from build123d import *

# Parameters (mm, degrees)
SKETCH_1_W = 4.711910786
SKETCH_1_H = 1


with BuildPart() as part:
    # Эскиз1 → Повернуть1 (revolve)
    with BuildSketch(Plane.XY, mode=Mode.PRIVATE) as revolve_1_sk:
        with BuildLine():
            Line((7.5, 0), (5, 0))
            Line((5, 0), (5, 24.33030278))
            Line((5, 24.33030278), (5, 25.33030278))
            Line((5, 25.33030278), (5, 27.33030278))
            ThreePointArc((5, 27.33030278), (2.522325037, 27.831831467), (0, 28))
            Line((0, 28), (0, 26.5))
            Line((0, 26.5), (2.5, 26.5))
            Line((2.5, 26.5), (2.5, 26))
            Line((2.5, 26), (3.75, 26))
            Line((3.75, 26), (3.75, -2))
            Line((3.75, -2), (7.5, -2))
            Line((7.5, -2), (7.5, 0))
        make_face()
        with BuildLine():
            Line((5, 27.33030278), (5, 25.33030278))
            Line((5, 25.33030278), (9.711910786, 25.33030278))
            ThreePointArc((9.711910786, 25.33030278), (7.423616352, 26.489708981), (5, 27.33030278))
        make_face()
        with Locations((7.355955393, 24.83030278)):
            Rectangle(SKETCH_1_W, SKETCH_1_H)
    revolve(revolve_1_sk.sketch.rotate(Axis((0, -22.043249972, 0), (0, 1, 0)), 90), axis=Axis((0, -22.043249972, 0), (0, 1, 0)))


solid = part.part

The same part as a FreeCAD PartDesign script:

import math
import FreeCAD as App
import Part
import Sketcher
from FreeCAD import Vector

doc = App.newDocument("Part")
body = doc.addObject("PartDesign::Body", "Body")

# Sketch on XY plane
sketch1 = body.newObject("Sketcher::SketchObject", "Sketch")
sketch1.AttachmentSupport = (doc.getObject("XY_Plane"), [""])
sketch1.MapMode = "FlatFace"
sketch1.addGeometry([
    Part.LineSegment(Vector(7.5, 0, 0), Vector(5, 0, 0)),  # 0
    Part.LineSegment(Vector(5, 0, 0), Vector(5, 24.3, 0)),  # 1
    Part.LineSegment(Vector(5, 24.3, 0), Vector(9.7, 24.3, 0)),  # 2
    Part.LineSegment(Vector(9.7, 24.3, 0), Vector(9.7, 25.3, 0)),  # 3
    Part.ArcOfCircle(Part.Circle(Vector(0, 9, 0), Vector(0, 0, 1), 19), math.radians(59.26), math.radians(74.74)),  # 4
    Part.ArcOfCircle(Part.Circle(Vector(0, 9, 0), Vector(0, 0, 1), 19), math.radians(74.74), math.radians(90)),  # 5
    Part.LineSegment(Vector(0, 28, 0), Vector(0, 26.5, 0)),  # 6
    Part.LineSegment(Vector(0, 26.5, 0), Vector(2.5, 26.5, 0)),  # 7
    Part.LineSegment(Vector(2.5, 26.5, 0), Vector(2.5, 26, 0)),  # 8
    Part.LineSegment(Vector(2.5, 26, 0), Vector(3.8, 26, 0)),  # 9
    Part.LineSegment(Vector(3.8, 26, 0), Vector(3.8, -2, 0)),  # 10
    Part.LineSegment(Vector(3.8, -2, 0), Vector(7.5, -2, 0)),  # 11
    Part.LineSegment(Vector(7.5, -2, 0), Vector(7.5, 0, 0)),  # 12
], False)
sketch1.addConstraint([
    Sketcher.Constraint("Coincident", 0, 2, 1, 1),
    Sketcher.Constraint("Coincident", 1, 2, 2, 1),
    Sketcher.Constraint("Coincident", 2, 2, 3, 1),
    Sketcher.Constraint("Coincident", 3, 2, 4, 1),
    Sketcher.Constraint("Tangent", 4, 2, 5, 1),
    Sketcher.Constraint("Coincident", 5, 2, 6, 1),
    Sketcher.Constraint("Coincident", 6, 2, 7, 1),
    Sketcher.Constraint("Coincident", 7, 2, 8, 1),
    Sketcher.Constraint("Coincident", 8, 2, 9, 1),
    Sketcher.Constraint("Coincident", 9, 2, 10, 1),
    Sketcher.Constraint("Coincident", 10, 2, 11, 1),
    Sketcher.Constraint("Coincident", 11, 2, 12, 1),
    Sketcher.Constraint("Coincident", 12, 2, 0, 1),
    Sketcher.Constraint("Horizontal", 0),
    Sketcher.Constraint("Vertical", 1),
    Sketcher.Constraint("Horizontal", 2),
    Sketcher.Constraint("Vertical", 3),
    Sketcher.Constraint("Vertical", 6),
    Sketcher.Constraint("Horizontal", 7),
    Sketcher.Constraint("Vertical", 8),
    Sketcher.Constraint("Horizontal", 9),
    Sketcher.Constraint("Vertical", 10),
    Sketcher.Constraint("Horizontal", 11),
    Sketcher.Constraint("Vertical", 12),
    Sketcher.Constraint("Equal", 4, 5),
    Sketcher.Constraint("PointOnObject", 4, 3, -2),
    Sketcher.Constraint("PointOnObject", 0, 2, -1),
    Sketcher.Constraint("PointOnObject", 5, 2, -2),
    Sketcher.Constraint("Vertical", 1, 2, 4, 2),
    Sketcher.Constraint("Equal", 0, 7),
    Sketcher.Constraint("Radius", 4, 19.0),
    Sketcher.Constraint("DistanceY", 3, 1, 3, 2, 1.0),
    Sketcher.Constraint("DistanceY", 10, 2, 10, 1, 28.0),
    Sketcher.Constraint("DistanceY", 12, 1, 12, 2, 2.0),
    Sketcher.Constraint("DistanceX", 0, 2, 0, 1, 2.5),
    Sketcher.Constraint("DistanceY", 6, 2, 6, 1, 1.5),
    Sketcher.Constraint("DistanceY", 8, 2, 8, 1, 0.5),
    Sketcher.Constraint("DistanceX", -1, 1, 0, 2, 5.0),
    Sketcher.Constraint("DistanceY", 1, 2, 4, 2, 3.0),
    Sketcher.Constraint("DistanceX", 9, 1, 9, 2, 1.25),
])
revolution = body.newObject("PartDesign::Revolution", "Revolution")
revolution.Profile = sketch1
revolution.ReferenceAxis = (sketch1, ["V_Axis"])
revolution.Angle = 360

doc.recompute()
